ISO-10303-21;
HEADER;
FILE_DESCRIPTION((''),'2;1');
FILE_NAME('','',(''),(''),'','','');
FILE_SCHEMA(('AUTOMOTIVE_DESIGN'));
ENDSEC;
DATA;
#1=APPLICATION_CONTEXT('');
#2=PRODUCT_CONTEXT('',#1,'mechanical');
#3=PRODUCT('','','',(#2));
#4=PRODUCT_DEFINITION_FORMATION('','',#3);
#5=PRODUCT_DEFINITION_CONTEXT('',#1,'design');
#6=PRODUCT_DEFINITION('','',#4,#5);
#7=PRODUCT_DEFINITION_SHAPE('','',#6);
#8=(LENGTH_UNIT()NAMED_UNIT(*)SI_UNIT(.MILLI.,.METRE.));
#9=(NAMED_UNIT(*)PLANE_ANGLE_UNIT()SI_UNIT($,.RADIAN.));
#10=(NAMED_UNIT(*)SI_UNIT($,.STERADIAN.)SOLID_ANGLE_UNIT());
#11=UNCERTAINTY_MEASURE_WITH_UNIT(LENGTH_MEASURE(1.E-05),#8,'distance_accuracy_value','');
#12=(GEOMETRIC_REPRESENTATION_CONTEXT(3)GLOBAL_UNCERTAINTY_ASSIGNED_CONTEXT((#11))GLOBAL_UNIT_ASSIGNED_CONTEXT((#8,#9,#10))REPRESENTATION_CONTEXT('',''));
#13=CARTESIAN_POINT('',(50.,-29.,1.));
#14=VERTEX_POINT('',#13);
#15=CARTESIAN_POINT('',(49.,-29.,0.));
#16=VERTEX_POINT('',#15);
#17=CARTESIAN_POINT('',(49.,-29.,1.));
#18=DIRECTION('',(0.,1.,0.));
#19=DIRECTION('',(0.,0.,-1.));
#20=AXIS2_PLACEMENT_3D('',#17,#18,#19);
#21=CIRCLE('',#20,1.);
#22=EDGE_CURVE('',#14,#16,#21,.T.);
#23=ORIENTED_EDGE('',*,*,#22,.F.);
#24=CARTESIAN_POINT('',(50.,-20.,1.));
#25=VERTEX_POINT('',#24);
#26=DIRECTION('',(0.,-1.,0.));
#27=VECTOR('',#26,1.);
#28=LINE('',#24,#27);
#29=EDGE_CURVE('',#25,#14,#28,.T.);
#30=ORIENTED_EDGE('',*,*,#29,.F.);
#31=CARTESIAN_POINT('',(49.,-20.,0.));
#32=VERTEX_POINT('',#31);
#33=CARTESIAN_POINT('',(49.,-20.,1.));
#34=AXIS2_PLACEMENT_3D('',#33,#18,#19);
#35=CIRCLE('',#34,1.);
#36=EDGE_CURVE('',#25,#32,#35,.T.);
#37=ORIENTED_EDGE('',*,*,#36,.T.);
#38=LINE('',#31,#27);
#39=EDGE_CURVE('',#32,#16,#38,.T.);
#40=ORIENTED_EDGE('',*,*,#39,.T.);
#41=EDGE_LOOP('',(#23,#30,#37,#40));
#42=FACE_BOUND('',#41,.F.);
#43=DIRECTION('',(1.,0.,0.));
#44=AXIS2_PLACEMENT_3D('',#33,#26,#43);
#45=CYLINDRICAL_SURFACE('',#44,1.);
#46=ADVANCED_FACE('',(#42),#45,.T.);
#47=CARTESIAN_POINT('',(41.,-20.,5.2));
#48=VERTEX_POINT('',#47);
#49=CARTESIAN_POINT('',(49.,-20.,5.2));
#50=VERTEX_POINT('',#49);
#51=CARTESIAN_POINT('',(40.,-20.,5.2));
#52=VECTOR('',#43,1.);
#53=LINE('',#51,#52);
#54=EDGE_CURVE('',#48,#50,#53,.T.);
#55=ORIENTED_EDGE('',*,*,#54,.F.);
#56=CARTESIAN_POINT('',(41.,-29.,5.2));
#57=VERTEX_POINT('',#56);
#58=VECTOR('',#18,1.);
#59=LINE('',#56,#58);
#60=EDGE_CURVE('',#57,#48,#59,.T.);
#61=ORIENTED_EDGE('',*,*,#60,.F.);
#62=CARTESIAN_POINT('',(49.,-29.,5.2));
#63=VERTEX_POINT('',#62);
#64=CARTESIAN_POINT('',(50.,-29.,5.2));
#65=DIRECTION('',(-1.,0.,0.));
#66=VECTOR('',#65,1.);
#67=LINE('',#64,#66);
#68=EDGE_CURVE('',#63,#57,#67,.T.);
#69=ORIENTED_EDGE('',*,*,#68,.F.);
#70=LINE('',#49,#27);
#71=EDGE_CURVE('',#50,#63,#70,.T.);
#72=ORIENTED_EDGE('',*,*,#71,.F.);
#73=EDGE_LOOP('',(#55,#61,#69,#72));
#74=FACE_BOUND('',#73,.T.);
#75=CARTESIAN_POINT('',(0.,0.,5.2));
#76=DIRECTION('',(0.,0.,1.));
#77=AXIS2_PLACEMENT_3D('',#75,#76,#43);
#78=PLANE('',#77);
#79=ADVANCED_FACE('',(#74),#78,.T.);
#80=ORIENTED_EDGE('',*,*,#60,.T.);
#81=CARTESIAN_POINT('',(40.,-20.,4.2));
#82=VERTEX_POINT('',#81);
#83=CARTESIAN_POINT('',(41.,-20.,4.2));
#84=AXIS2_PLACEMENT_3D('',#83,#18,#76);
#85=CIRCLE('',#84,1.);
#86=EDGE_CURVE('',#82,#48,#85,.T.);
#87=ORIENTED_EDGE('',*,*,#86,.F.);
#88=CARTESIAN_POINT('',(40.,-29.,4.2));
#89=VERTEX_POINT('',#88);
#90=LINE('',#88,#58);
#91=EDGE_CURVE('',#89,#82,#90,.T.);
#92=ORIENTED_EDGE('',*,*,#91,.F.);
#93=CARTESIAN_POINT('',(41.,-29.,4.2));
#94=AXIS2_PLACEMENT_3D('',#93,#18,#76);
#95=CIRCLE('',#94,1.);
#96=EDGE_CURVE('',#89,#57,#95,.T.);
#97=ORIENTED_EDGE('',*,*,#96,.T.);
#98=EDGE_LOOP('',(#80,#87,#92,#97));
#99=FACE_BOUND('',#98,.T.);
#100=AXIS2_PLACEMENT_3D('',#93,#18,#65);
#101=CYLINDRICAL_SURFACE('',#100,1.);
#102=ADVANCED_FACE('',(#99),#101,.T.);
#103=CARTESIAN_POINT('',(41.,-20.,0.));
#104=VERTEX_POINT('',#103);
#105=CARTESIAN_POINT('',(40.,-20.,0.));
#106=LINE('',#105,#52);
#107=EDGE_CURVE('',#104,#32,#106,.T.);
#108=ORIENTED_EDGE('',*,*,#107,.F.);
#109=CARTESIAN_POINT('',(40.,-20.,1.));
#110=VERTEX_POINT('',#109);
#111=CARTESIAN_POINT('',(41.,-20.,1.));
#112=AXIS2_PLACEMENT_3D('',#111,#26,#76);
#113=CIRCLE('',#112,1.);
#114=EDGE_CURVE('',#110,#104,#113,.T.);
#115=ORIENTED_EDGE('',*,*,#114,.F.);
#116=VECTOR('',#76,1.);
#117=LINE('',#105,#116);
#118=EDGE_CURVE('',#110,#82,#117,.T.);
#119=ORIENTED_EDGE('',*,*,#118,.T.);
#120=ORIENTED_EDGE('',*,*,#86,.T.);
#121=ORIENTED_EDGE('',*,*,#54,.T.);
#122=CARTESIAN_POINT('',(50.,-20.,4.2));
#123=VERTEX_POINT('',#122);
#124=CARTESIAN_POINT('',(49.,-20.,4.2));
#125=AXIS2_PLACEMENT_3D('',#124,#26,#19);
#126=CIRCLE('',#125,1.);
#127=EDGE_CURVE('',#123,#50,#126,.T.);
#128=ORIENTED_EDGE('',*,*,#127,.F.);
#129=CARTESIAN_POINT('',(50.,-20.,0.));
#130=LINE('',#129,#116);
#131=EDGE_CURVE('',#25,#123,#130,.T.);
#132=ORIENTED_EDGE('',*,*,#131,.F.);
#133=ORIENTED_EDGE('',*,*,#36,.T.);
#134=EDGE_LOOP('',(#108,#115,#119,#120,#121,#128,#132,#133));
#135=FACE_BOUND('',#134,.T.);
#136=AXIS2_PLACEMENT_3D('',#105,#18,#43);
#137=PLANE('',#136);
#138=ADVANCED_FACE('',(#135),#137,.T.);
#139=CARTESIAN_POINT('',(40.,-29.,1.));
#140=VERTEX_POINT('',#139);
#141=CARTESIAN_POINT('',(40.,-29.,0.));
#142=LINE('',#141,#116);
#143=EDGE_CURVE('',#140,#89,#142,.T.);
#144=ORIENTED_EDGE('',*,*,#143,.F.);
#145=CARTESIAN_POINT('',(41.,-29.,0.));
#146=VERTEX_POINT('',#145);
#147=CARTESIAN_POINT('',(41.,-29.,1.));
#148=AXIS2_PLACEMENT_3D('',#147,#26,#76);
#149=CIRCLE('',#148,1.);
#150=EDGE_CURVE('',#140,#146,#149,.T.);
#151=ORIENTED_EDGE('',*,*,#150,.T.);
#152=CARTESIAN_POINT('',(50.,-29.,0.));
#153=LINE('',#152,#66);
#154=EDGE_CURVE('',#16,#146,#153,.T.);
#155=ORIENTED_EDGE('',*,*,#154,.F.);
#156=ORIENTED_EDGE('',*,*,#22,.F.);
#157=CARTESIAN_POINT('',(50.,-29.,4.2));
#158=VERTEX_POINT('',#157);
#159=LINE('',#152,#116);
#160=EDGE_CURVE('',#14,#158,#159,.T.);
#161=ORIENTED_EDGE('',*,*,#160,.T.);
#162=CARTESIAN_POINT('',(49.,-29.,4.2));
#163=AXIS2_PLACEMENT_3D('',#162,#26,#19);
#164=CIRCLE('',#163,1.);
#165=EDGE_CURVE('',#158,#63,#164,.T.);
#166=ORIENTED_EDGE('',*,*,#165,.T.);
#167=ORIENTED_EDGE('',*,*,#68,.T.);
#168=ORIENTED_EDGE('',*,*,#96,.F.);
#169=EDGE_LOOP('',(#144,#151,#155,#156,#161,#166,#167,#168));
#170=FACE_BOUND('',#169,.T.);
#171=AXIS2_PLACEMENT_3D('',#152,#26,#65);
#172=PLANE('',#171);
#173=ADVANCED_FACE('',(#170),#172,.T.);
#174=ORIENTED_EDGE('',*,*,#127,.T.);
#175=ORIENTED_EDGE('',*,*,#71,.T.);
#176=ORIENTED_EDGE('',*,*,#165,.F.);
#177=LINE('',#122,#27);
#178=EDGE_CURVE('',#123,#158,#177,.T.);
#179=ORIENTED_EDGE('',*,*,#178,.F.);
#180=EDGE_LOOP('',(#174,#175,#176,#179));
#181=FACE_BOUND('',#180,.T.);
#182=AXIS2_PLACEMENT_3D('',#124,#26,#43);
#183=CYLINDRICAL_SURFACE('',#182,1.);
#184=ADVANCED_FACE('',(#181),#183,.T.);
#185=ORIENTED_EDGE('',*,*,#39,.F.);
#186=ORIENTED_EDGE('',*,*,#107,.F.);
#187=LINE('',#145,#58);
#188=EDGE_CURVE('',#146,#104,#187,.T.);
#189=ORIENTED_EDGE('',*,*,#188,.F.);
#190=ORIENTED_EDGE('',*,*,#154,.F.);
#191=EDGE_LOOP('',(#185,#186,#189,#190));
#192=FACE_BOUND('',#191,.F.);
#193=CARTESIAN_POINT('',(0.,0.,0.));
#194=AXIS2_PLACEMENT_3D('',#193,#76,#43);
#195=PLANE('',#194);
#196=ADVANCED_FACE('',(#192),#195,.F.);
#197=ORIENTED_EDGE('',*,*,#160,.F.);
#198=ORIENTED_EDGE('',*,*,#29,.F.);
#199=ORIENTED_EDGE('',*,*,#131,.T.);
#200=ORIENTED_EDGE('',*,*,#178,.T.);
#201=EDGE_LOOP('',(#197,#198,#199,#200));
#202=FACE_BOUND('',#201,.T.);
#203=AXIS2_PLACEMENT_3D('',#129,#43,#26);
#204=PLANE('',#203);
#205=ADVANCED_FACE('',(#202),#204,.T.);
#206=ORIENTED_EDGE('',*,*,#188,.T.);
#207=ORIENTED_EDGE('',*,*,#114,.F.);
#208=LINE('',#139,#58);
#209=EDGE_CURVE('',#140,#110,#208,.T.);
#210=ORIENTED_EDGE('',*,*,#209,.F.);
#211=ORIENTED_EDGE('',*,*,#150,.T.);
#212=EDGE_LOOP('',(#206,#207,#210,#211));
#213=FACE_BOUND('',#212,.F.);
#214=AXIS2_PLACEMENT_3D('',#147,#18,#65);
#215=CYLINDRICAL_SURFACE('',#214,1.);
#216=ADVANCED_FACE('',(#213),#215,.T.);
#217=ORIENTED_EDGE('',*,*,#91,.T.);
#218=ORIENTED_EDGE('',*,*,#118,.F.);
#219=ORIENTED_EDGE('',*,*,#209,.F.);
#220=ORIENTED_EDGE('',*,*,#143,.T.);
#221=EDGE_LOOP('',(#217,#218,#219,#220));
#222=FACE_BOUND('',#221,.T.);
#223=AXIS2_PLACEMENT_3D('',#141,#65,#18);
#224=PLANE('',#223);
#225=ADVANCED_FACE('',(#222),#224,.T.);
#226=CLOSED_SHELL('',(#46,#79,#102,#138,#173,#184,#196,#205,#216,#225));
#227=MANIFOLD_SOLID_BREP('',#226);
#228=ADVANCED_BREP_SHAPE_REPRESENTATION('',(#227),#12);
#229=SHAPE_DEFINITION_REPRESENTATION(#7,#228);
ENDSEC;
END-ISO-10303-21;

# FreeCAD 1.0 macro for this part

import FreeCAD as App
import Part
import Sketcher
from FreeCAD import Vector


def edges_at(feature, points):
    """Names of the edges that pass closest to the given points."""
    edges = feature.Shape.Edges
    near = lambda p: min(range(len(edges)), key=lambda i: edges[i].distToShape(Part.Vertex(*p))[0])
    return sorted({f"Edge{near(p) + 1}" for p in points})

doc = App.newDocument("Part")
body = doc.addObject("PartDesign::Body", "Body")

# Sketch on XY plane
sketch1 = doc.addObject("Sketcher::SketchObject", "Sketch")
body.addObject(sketch1)
sketch1.AttachmentSupport = (doc.XY_Plane, [""])
sketch1.MapMode = "FlatFace"
sketch1.addGeometry(Part.LineSegment(Vector(40, -29, 0), Vector(50, -29, 0)), False)
sketch1.addGeometry(Part.LineSegment(Vector(50, -29, 0), Vector(50, -20, 0)), False)
sketch1.addGeometry(Part.LineSegment(Vector(50, -20, 0), Vector(40, -20, 0)), False)
sketch1.addGeometry(Part.LineSegment(Vector(40, -20, 0), Vector(40, -29, 0)), False)
sketch1.addConstraint(Sketcher.Constraint("Coincident", 0, 2, 1, 1))
sketch1.addConstraint(Sketcher.Constraint("Coincident", 1, 2, 2, 1))
sketch1.addConstraint(Sketcher.Constraint("Coincident", 2, 2, 3, 1))
sketch1.addConstraint(Sketcher.Constraint("Coincident", 3, 2, 0, 1))
sketch1.addConstraint(Sketcher.Constraint("Horizontal", 0))
sketch1.addConstraint(Sketcher.Constraint("Vertical", 1))
sketch1.addConstraint(Sketcher.Constraint("Horizontal", 2))
sketch1.addConstraint(Sketcher.Constraint("Vertical", 3))
sketch1.addConstraint(Sketcher.Constraint("DistanceX", 0, 1, 0, 2, 10.0))
sketch1.addConstraint(Sketcher.Constraint("DistanceY", 1, 1, 1, 2, 9.0))
sketch1.addConstraint(Sketcher.Constraint("DistanceY", 1, 2, -1, 1, 20.0))
sketch1.addConstraint(Sketcher.Constraint("DistanceX", -1, 1, 2, 2, 40.0))
pad1 = doc.addObject("PartDesign::Pad", "Pad")
body.addObject(pad1)
pad1.Profile = sketch1
pad1.Length = 5.2
doc.recompute()

fillet = doc.addObject("PartDesign::Fillet", "Fillet")
body.addObject(fillet)
fillet.Base = (pad1, edges_at(pad1, [
    (50, -24.5, 5.2),
    (40, -24.5, 5.2),
    (50, -24.5, 0),
    (40, -24.5, 0),
]))
fillet.Radius = 1

doc.recompute()
